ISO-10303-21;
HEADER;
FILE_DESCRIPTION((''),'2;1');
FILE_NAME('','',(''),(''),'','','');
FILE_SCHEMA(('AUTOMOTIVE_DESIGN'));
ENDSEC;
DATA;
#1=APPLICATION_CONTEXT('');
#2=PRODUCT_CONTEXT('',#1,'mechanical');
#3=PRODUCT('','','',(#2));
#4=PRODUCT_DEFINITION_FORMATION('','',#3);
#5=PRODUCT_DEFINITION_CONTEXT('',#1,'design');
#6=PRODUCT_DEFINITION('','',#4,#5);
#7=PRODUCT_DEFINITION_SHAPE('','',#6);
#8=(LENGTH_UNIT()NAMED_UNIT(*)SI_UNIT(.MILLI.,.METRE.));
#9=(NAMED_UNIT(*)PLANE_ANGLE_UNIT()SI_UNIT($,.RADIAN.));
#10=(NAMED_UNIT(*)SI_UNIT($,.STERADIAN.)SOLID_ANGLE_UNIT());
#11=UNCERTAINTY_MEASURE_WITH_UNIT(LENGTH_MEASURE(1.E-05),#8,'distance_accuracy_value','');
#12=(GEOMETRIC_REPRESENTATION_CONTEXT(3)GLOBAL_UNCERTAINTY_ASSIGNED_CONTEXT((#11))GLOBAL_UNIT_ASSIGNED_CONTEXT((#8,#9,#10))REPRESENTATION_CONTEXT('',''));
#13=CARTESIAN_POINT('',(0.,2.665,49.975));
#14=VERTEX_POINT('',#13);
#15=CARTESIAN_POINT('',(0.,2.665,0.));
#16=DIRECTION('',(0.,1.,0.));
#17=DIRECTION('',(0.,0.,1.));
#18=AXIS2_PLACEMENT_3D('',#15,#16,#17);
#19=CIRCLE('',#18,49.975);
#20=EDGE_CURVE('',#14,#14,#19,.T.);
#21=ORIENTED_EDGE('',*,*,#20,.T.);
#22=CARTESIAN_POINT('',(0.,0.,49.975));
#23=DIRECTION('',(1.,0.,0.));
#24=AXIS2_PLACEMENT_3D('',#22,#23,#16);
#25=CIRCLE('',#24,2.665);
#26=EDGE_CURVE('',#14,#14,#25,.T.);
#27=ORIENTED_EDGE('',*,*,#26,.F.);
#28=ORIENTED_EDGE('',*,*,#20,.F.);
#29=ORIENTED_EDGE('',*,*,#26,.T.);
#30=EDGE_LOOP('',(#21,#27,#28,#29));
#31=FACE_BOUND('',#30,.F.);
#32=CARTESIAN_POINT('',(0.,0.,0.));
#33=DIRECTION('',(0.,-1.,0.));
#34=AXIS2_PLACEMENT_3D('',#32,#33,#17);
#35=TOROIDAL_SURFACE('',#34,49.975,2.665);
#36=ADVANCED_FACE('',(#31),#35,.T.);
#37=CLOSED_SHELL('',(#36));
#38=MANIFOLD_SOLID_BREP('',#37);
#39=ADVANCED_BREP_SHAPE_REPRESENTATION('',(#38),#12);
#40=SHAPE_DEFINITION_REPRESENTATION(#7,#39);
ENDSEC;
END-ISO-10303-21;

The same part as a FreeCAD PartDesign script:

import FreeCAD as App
import Part
import Sketcher
from FreeCAD import Vector

doc = App.newDocument("Part")
body = doc.addObject("PartDesign::Body", "Body")

# Sketch on YZ plane
sketch1 = body.newObject("Sketcher::SketchObject", "Sketch")
sketch1.AttachmentSupport = (doc.getObject("YZ_Plane"), [""])
sketch1.MapMode = "FlatFace"
sketch1.addGeometry(Part.Circle(Vector(0, 50, 0), Vector(0, 0, 1), 2.7), False)
sketch1.addConstraint([
    Sketcher.Constraint("PointOnObject", 0, 3, -2),
    Sketcher.Constraint("Diameter", 0, 5.33),
    Sketcher.Constraint("DistanceY", -1, 1, 0, 3, 49.975),
])
revolution = body.newObject("PartDesign::Revolution", "Revolution")
revolution.Profile = sketch1
revolution.ReferenceAxis = (sketch1, ["H_Axis"])
revolution.Angle = 360

doc.recompute()
